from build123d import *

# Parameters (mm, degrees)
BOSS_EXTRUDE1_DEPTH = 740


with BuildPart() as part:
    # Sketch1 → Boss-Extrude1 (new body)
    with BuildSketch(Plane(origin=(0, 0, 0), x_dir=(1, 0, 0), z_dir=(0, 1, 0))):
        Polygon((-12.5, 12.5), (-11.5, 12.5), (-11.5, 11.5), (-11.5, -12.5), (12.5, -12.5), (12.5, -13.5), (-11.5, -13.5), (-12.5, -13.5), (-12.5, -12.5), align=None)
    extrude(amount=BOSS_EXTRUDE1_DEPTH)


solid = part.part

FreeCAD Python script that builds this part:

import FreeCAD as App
import Part
import Sketcher

doc = App.newDocument("Part")
params = doc.addObject("Spreadsheet::Sheet", "Params")
for row, (alias, value) in enumerate([
    ("sketch1_width", "1 mm"),
    ("sketch1_width2", "25 mm"),
    ("pad1_length", "740 mm"),
], start=1):
    params.set(f"A{row}", alias)
    params.set(f"B{row}", "=" + value)
    params.setAlias(f"B{row}", alias)

body = doc.addObject("PartDesign::Body", "Body")

sketch1 = doc.addObject("Sketcher::SketchObject", "Sketch")
body.addObject(sketch1)
sketch1.AttachmentSupport = (doc.XZ_Plane, [""])
sketch1.MapMode = "FlatFace"
sketch1.addGeometry(Part.LineSegment(App.Vector(-11.5, -12.5, 0), App.Vector(-12.5, -12.5, 0)), False)
sketch1.addGeometry(Part.LineSegment(App.Vector(-12.5, -12.5, 0), App.Vector(-12.5, 13.5, 0)), False)
sketch1.addGeometry(Part.LineSegment(App.Vector(-12.5, 13.5, 0), App.Vector(12.5, 13.5, 0)), False)
sketch1.addGeometry(Part.LineSegment(App.Vector(12.5, 13.5, 0), App.Vector(12.5, 12.5, 0)), False)
sketch1.addGeometry(Part.LineSegment(App.Vector(12.5, 12.5, 0), App.Vector(-11.5, 12.5, 0)), False)
sketch1.addGeometry(Part.LineSegment(App.Vector(-11.5, 12.5, 0), App.Vector(-11.5, -12.5, 0)), False)
sketch1.addConstraint(Sketcher.Constraint("Coincident", 0, 2, 1, 1))
sketch1.addConstraint(Sketcher.Constraint("Coincident", 1, 2, 2, 1))
sketch1.addConstraint(Sketcher.Constraint("Coincident", 2, 2, 3, 1))
sketch1.addConstraint(Sketcher.Constraint("Coincident", 3, 2, 4, 1))
sketch1.addConstraint(Sketcher.Constraint("Coincident", 4, 2, 5, 1))
sketch1.addConstraint(Sketcher.Constraint("Coincident", 5, 2, 0, 1))
sketch1.addConstraint(Sketcher.Constraint("Horizontal", 0))
sketch1.addConstraint(Sketcher.Constraint("Vertical", 1))
sketch1.addConstraint(Sketcher.Constraint("Horizontal", 2))
sketch1.addConstraint(Sketcher.Constraint("Vertical", 3))
sketch1.addConstraint(Sketcher.Constraint("Horizontal", 4))
sketch1.addConstraint(Sketcher.Constraint("Vertical", 5))
sketch1.addConstraint(Sketcher.Constraint("Symmetric", 0, 2, 3, 2, -1, 1))
sketch1.addConstraint(Sketcher.Constraint("Equal", 0, 3))
sketch1.addConstraint(Sketcher.Constraint("Equal", 2, 5))
sketch1.addConstraint(Sketcher.Constraint("DistanceX", 0, 2, 0, 1, 1.0))
sketch1.addConstraint(Sketcher.Constraint("DistanceX", 2, 1, 2, 2, 25.0))
sketch1.setExpression("Constraints[15]", "Params.sketch1_width")
sketch1.setExpression("Constraints[16]", "Params.sketch1_width2")
pad1 = doc.addObject("PartDesign::Pad", "Pad")
body.addObject(pad1)
pad1.Profile = sketch1
pad1.setExpression("Length", "Params.pad1_length")
pad1.Reversed = True

doc.recompute()
